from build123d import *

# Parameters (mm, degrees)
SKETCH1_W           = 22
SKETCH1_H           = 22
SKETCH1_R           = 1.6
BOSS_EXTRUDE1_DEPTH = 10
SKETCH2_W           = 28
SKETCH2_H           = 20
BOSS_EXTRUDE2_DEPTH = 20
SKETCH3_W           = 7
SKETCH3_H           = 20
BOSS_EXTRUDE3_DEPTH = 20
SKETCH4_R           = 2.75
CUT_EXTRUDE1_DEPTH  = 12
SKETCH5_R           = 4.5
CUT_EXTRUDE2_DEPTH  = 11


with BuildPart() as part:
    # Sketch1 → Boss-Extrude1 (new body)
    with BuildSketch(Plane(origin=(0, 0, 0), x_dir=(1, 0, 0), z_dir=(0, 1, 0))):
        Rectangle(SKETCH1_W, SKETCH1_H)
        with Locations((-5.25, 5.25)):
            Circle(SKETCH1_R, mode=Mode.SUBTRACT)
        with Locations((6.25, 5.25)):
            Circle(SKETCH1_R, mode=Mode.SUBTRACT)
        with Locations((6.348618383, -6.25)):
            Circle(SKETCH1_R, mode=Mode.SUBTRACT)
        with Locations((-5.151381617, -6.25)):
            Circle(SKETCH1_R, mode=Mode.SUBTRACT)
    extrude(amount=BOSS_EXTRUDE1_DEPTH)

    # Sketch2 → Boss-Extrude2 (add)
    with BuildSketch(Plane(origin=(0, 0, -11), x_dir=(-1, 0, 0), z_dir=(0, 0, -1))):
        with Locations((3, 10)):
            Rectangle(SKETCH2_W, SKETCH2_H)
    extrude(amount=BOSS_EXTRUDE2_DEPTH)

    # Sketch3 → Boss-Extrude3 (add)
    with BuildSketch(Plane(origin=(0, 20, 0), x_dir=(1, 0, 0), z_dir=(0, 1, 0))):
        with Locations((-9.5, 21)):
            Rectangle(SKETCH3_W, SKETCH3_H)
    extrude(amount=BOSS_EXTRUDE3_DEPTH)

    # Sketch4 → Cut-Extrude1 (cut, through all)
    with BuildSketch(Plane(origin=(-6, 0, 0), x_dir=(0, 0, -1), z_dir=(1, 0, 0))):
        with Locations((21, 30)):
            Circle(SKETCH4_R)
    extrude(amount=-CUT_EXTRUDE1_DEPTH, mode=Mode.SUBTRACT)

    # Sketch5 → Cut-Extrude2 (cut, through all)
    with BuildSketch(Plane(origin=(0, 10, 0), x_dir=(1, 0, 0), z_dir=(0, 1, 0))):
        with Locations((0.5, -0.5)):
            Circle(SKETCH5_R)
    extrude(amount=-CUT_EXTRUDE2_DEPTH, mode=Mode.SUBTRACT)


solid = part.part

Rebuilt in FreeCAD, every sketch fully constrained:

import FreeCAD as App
import Part
import Sketcher

V = App.Vector
Q = App.Units.Quantity


def add_polygon(sketch, points):
    """Adds a closed chain of lines whose ends are joined by coincident constraints."""
    first, n = sketch.GeometryCount, len(points)
    for a, b in zip(points, points[1:] + points[:1]):
        sketch.addGeometry(Part.LineSegment(App.Vector(*a, 0), App.Vector(*b, 0)), False)
    for i in range(n):
        sketch.addConstraint(Sketcher.Constraint("Coincident", first + i, 2, first + (i + 1) % n, 1))

doc = App.newDocument("Part")
body = doc.addObject("PartDesign::Body", "Body")

sketch1 = doc.addObject("Sketcher::SketchObject", "Sketch")
body.addObject(sketch1)
sketch1.AttachmentSupport = (doc.XZ_Plane, [""])
sketch1.MapMode = "FlatFace"
add_polygon(sketch1, [(-11, -11), (-11, 11), (11, 11), (11, -11)])
sketch1.addGeometry(Part.Circle(V(-5.151382, 6.25, 0), V(0, 0, 1), 1.6), False)
sketch1.addGeometry(Part.Circle(V(6.348618, 6.25, 0), V(0, 0, 1), 1.6), False)
sketch1.addGeometry(Part.Circle(V(-5.25, -5.25, 0), V(0, 0, 1), 1.6), False)
sketch1.addGeometry(Part.Circle(V(6.25, -5.25, 0), V(0, 0, 1), 1.6), False)
sketch1.addConstraint([
    Sketcher.Constraint("Vertical", 0),
    Sketcher.Constraint("Horizontal", 1),
    Sketcher.Constraint("Vertical", 2),
    Sketcher.Constraint("Horizontal", 3),
    Sketcher.Constraint("Equal", 4, 5),
    Sketcher.Constraint("Equal", 5, 6),
    Sketcher.Constraint("Equal", 6, 7),
    Sketcher.Constraint("Symmetric", 0, 2, 2, 2, -1, 1),
    Sketcher.Constraint("Horizontal", 4, 3, 5, 3),
    Sketcher.Constraint("Horizontal", 6, 3, 7, 3),
    Sketcher.Constraint("Equal", 3, 0),
    Sketcher.Constraint("Diameter", 4, Q("3.2 mm")),
    Sketcher.Constraint("DistanceX", 1, 1, 1, 2, Q("22 mm")),
    Sketcher.Constraint("DistanceX", 4, 3, 5, 3, Q("11.5 mm")),
    Sketcher.Constraint("DistanceY", 6, 3, 4, 3, Q("11.5 mm")),
    Sketcher.Constraint("DistanceX", 6, 3, 7, 3, Q("11.5 mm")),
    Sketcher.Constraint("DistanceY", -1, 1, 4, 3, Q("6.25 mm")),
    Sketcher.Constraint("DistanceX", 6, 3, -1, 1, Q("5.25 mm")),
    Sketcher.Constraint("DistanceX", 4, 3, -1, 1, Q("5.151382 mm")),
])
pad1 = doc.addObject("PartDesign::Pad", "Pad")
body.addObject(pad1)
pad1.Profile = sketch1
pad1.Length = 10
pad1.Reversed = True

sketch2 = doc.addObject("Sketcher::SketchObject", "Sketch001")
body.addObject(sketch2)
sketch2.AttachmentSupport = (doc.XY_Plane, [""])
sketch2.MapMode = "FlatFace"
sketch2.AttachmentOffset = App.Placement(V(0, 0, -11), App.Rotation())
add_polygon(sketch2, [(11, 20), (11, 0), (-17, 0), (-17, 20)])
sketch2.addConstraint([
    Sketcher.Constraint("Vertical", 0),
    Sketcher.Constraint("Horizontal", 1),
    Sketcher.Constraint("Vertical", 2),
    Sketcher.Constraint("Horizontal", 3),
    Sketcher.Constraint("PointOnObject", 0, 2, -1),
    Sketcher.Constraint("DistanceX", 1, 2, 1, 1, Q("28 mm")),
    Sketcher.Constraint("DistanceY", 0, 2, 0, 1, Q("20 mm")),
    Sketcher.Constraint("DistanceX", -1, 1, 0, 2, Q("11 mm")),
])
pad2 = doc.addObject("PartDesign::Pad", "Pad001")
body.addObject(pad2)
pad2.Profile = sketch2
pad2.Length = 20
pad2.Reversed = True

sketch3 = doc.addObject("Sketcher::SketchObject", "Sketch002")
body.addObject(sketch3)
sketch3.AttachmentSupport = (doc.XZ_Plane, [""])
sketch3.MapMode = "FlatFace"
sketch3.AttachmentOffset = App.Placement(V(0, 0, -20), App.Rotation())
add_polygon(sketch3, [(-13, -31), (-13, -11), (-6, -11), (-6, -31)])
sketch3.addConstraint([
    Sketcher.Constraint("Vertical", 0),
    Sketcher.Constraint("Horizontal", 1),
    Sketcher.Constraint("Vertical", 2),
    Sketcher.Constraint("Horizontal", 3),
    Sketcher.Constraint("DistanceX", 1, 1, 1, 2, Q("7 mm")),
    Sketcher.Constraint("DistanceY", 0, 1, 0, 2, Q("20 mm")),
    Sketcher.Constraint("DistanceX", 0, 2, -1, 1, Q("13 mm")),
    Sketcher.Constraint("DistanceY", 0, 2, -1, 1, Q("11 mm")),
])
pad3 = doc.addObject("PartDesign::Pad", "Pad002")
body.addObject(pad3)
pad3.Profile = sketch3
pad3.Length = 20
pad3.Reversed = True

sketch4 = doc.addObject("Sketcher::SketchObject", "Sketch003")
body.addObject(sketch4)
sketch4.AttachmentSupport = (doc.YZ_Plane, [""])
sketch4.MapMode = "FlatFace"
sketch4.AttachmentOffset = App.Placement(V(0, 0, -6), App.Rotation())
sketch4.addGeometry(Part.Circle(V(30, -21, 0), V(0, 0, 1), 2.75), False)
sketch4.addConstraint([
    Sketcher.Constraint("Diameter", 0, Q("5.5 mm")),
    Sketcher.Constraint("DistanceX", -1, 1, 0, 3, Q("30 mm")),
    Sketcher.Constraint("DistanceY", 0, 3, -1, 1, Q("21 mm")),
])
pocket1 = doc.addObject("PartDesign::Pocket", "Pocket")
body.addObject(pocket1)
pocket1.Profile = sketch4
pocket1.Type = "ThroughAll"

sketch5 = doc.addObject("Sketcher::SketchObject", "Sketch004")
body.addObject(sketch5)
sketch5.AttachmentSupport = (doc.XZ_Plane, [""])
sketch5.MapMode = "FlatFace"
sketch5.AttachmentOffset = App.Placement(V(0, 0, -10), App.Rotation())
sketch5.addGeometry(Part.Circle(V(0.5, 0.5, 0), V(0, 0, 1), 4.5), False)
sketch5.addConstraint([
    Sketcher.Constraint("Diameter", 0, Q("9 mm")),
    Sketcher.Constraint("DistanceX", -1, 1, 0, 3, Q("0.5 mm")),
    Sketcher.Constraint("DistanceY", -1, 1, 0, 3, Q("0.5 mm")),
])
pocket2 = doc.addObject("PartDesign::Pocket", "Pocket001")
body.addObject(pocket2)
pocket2.Profile = sketch5
pocket2.Type = "ThroughAll"
pocket2.Reversed = True

doc.recompute()
